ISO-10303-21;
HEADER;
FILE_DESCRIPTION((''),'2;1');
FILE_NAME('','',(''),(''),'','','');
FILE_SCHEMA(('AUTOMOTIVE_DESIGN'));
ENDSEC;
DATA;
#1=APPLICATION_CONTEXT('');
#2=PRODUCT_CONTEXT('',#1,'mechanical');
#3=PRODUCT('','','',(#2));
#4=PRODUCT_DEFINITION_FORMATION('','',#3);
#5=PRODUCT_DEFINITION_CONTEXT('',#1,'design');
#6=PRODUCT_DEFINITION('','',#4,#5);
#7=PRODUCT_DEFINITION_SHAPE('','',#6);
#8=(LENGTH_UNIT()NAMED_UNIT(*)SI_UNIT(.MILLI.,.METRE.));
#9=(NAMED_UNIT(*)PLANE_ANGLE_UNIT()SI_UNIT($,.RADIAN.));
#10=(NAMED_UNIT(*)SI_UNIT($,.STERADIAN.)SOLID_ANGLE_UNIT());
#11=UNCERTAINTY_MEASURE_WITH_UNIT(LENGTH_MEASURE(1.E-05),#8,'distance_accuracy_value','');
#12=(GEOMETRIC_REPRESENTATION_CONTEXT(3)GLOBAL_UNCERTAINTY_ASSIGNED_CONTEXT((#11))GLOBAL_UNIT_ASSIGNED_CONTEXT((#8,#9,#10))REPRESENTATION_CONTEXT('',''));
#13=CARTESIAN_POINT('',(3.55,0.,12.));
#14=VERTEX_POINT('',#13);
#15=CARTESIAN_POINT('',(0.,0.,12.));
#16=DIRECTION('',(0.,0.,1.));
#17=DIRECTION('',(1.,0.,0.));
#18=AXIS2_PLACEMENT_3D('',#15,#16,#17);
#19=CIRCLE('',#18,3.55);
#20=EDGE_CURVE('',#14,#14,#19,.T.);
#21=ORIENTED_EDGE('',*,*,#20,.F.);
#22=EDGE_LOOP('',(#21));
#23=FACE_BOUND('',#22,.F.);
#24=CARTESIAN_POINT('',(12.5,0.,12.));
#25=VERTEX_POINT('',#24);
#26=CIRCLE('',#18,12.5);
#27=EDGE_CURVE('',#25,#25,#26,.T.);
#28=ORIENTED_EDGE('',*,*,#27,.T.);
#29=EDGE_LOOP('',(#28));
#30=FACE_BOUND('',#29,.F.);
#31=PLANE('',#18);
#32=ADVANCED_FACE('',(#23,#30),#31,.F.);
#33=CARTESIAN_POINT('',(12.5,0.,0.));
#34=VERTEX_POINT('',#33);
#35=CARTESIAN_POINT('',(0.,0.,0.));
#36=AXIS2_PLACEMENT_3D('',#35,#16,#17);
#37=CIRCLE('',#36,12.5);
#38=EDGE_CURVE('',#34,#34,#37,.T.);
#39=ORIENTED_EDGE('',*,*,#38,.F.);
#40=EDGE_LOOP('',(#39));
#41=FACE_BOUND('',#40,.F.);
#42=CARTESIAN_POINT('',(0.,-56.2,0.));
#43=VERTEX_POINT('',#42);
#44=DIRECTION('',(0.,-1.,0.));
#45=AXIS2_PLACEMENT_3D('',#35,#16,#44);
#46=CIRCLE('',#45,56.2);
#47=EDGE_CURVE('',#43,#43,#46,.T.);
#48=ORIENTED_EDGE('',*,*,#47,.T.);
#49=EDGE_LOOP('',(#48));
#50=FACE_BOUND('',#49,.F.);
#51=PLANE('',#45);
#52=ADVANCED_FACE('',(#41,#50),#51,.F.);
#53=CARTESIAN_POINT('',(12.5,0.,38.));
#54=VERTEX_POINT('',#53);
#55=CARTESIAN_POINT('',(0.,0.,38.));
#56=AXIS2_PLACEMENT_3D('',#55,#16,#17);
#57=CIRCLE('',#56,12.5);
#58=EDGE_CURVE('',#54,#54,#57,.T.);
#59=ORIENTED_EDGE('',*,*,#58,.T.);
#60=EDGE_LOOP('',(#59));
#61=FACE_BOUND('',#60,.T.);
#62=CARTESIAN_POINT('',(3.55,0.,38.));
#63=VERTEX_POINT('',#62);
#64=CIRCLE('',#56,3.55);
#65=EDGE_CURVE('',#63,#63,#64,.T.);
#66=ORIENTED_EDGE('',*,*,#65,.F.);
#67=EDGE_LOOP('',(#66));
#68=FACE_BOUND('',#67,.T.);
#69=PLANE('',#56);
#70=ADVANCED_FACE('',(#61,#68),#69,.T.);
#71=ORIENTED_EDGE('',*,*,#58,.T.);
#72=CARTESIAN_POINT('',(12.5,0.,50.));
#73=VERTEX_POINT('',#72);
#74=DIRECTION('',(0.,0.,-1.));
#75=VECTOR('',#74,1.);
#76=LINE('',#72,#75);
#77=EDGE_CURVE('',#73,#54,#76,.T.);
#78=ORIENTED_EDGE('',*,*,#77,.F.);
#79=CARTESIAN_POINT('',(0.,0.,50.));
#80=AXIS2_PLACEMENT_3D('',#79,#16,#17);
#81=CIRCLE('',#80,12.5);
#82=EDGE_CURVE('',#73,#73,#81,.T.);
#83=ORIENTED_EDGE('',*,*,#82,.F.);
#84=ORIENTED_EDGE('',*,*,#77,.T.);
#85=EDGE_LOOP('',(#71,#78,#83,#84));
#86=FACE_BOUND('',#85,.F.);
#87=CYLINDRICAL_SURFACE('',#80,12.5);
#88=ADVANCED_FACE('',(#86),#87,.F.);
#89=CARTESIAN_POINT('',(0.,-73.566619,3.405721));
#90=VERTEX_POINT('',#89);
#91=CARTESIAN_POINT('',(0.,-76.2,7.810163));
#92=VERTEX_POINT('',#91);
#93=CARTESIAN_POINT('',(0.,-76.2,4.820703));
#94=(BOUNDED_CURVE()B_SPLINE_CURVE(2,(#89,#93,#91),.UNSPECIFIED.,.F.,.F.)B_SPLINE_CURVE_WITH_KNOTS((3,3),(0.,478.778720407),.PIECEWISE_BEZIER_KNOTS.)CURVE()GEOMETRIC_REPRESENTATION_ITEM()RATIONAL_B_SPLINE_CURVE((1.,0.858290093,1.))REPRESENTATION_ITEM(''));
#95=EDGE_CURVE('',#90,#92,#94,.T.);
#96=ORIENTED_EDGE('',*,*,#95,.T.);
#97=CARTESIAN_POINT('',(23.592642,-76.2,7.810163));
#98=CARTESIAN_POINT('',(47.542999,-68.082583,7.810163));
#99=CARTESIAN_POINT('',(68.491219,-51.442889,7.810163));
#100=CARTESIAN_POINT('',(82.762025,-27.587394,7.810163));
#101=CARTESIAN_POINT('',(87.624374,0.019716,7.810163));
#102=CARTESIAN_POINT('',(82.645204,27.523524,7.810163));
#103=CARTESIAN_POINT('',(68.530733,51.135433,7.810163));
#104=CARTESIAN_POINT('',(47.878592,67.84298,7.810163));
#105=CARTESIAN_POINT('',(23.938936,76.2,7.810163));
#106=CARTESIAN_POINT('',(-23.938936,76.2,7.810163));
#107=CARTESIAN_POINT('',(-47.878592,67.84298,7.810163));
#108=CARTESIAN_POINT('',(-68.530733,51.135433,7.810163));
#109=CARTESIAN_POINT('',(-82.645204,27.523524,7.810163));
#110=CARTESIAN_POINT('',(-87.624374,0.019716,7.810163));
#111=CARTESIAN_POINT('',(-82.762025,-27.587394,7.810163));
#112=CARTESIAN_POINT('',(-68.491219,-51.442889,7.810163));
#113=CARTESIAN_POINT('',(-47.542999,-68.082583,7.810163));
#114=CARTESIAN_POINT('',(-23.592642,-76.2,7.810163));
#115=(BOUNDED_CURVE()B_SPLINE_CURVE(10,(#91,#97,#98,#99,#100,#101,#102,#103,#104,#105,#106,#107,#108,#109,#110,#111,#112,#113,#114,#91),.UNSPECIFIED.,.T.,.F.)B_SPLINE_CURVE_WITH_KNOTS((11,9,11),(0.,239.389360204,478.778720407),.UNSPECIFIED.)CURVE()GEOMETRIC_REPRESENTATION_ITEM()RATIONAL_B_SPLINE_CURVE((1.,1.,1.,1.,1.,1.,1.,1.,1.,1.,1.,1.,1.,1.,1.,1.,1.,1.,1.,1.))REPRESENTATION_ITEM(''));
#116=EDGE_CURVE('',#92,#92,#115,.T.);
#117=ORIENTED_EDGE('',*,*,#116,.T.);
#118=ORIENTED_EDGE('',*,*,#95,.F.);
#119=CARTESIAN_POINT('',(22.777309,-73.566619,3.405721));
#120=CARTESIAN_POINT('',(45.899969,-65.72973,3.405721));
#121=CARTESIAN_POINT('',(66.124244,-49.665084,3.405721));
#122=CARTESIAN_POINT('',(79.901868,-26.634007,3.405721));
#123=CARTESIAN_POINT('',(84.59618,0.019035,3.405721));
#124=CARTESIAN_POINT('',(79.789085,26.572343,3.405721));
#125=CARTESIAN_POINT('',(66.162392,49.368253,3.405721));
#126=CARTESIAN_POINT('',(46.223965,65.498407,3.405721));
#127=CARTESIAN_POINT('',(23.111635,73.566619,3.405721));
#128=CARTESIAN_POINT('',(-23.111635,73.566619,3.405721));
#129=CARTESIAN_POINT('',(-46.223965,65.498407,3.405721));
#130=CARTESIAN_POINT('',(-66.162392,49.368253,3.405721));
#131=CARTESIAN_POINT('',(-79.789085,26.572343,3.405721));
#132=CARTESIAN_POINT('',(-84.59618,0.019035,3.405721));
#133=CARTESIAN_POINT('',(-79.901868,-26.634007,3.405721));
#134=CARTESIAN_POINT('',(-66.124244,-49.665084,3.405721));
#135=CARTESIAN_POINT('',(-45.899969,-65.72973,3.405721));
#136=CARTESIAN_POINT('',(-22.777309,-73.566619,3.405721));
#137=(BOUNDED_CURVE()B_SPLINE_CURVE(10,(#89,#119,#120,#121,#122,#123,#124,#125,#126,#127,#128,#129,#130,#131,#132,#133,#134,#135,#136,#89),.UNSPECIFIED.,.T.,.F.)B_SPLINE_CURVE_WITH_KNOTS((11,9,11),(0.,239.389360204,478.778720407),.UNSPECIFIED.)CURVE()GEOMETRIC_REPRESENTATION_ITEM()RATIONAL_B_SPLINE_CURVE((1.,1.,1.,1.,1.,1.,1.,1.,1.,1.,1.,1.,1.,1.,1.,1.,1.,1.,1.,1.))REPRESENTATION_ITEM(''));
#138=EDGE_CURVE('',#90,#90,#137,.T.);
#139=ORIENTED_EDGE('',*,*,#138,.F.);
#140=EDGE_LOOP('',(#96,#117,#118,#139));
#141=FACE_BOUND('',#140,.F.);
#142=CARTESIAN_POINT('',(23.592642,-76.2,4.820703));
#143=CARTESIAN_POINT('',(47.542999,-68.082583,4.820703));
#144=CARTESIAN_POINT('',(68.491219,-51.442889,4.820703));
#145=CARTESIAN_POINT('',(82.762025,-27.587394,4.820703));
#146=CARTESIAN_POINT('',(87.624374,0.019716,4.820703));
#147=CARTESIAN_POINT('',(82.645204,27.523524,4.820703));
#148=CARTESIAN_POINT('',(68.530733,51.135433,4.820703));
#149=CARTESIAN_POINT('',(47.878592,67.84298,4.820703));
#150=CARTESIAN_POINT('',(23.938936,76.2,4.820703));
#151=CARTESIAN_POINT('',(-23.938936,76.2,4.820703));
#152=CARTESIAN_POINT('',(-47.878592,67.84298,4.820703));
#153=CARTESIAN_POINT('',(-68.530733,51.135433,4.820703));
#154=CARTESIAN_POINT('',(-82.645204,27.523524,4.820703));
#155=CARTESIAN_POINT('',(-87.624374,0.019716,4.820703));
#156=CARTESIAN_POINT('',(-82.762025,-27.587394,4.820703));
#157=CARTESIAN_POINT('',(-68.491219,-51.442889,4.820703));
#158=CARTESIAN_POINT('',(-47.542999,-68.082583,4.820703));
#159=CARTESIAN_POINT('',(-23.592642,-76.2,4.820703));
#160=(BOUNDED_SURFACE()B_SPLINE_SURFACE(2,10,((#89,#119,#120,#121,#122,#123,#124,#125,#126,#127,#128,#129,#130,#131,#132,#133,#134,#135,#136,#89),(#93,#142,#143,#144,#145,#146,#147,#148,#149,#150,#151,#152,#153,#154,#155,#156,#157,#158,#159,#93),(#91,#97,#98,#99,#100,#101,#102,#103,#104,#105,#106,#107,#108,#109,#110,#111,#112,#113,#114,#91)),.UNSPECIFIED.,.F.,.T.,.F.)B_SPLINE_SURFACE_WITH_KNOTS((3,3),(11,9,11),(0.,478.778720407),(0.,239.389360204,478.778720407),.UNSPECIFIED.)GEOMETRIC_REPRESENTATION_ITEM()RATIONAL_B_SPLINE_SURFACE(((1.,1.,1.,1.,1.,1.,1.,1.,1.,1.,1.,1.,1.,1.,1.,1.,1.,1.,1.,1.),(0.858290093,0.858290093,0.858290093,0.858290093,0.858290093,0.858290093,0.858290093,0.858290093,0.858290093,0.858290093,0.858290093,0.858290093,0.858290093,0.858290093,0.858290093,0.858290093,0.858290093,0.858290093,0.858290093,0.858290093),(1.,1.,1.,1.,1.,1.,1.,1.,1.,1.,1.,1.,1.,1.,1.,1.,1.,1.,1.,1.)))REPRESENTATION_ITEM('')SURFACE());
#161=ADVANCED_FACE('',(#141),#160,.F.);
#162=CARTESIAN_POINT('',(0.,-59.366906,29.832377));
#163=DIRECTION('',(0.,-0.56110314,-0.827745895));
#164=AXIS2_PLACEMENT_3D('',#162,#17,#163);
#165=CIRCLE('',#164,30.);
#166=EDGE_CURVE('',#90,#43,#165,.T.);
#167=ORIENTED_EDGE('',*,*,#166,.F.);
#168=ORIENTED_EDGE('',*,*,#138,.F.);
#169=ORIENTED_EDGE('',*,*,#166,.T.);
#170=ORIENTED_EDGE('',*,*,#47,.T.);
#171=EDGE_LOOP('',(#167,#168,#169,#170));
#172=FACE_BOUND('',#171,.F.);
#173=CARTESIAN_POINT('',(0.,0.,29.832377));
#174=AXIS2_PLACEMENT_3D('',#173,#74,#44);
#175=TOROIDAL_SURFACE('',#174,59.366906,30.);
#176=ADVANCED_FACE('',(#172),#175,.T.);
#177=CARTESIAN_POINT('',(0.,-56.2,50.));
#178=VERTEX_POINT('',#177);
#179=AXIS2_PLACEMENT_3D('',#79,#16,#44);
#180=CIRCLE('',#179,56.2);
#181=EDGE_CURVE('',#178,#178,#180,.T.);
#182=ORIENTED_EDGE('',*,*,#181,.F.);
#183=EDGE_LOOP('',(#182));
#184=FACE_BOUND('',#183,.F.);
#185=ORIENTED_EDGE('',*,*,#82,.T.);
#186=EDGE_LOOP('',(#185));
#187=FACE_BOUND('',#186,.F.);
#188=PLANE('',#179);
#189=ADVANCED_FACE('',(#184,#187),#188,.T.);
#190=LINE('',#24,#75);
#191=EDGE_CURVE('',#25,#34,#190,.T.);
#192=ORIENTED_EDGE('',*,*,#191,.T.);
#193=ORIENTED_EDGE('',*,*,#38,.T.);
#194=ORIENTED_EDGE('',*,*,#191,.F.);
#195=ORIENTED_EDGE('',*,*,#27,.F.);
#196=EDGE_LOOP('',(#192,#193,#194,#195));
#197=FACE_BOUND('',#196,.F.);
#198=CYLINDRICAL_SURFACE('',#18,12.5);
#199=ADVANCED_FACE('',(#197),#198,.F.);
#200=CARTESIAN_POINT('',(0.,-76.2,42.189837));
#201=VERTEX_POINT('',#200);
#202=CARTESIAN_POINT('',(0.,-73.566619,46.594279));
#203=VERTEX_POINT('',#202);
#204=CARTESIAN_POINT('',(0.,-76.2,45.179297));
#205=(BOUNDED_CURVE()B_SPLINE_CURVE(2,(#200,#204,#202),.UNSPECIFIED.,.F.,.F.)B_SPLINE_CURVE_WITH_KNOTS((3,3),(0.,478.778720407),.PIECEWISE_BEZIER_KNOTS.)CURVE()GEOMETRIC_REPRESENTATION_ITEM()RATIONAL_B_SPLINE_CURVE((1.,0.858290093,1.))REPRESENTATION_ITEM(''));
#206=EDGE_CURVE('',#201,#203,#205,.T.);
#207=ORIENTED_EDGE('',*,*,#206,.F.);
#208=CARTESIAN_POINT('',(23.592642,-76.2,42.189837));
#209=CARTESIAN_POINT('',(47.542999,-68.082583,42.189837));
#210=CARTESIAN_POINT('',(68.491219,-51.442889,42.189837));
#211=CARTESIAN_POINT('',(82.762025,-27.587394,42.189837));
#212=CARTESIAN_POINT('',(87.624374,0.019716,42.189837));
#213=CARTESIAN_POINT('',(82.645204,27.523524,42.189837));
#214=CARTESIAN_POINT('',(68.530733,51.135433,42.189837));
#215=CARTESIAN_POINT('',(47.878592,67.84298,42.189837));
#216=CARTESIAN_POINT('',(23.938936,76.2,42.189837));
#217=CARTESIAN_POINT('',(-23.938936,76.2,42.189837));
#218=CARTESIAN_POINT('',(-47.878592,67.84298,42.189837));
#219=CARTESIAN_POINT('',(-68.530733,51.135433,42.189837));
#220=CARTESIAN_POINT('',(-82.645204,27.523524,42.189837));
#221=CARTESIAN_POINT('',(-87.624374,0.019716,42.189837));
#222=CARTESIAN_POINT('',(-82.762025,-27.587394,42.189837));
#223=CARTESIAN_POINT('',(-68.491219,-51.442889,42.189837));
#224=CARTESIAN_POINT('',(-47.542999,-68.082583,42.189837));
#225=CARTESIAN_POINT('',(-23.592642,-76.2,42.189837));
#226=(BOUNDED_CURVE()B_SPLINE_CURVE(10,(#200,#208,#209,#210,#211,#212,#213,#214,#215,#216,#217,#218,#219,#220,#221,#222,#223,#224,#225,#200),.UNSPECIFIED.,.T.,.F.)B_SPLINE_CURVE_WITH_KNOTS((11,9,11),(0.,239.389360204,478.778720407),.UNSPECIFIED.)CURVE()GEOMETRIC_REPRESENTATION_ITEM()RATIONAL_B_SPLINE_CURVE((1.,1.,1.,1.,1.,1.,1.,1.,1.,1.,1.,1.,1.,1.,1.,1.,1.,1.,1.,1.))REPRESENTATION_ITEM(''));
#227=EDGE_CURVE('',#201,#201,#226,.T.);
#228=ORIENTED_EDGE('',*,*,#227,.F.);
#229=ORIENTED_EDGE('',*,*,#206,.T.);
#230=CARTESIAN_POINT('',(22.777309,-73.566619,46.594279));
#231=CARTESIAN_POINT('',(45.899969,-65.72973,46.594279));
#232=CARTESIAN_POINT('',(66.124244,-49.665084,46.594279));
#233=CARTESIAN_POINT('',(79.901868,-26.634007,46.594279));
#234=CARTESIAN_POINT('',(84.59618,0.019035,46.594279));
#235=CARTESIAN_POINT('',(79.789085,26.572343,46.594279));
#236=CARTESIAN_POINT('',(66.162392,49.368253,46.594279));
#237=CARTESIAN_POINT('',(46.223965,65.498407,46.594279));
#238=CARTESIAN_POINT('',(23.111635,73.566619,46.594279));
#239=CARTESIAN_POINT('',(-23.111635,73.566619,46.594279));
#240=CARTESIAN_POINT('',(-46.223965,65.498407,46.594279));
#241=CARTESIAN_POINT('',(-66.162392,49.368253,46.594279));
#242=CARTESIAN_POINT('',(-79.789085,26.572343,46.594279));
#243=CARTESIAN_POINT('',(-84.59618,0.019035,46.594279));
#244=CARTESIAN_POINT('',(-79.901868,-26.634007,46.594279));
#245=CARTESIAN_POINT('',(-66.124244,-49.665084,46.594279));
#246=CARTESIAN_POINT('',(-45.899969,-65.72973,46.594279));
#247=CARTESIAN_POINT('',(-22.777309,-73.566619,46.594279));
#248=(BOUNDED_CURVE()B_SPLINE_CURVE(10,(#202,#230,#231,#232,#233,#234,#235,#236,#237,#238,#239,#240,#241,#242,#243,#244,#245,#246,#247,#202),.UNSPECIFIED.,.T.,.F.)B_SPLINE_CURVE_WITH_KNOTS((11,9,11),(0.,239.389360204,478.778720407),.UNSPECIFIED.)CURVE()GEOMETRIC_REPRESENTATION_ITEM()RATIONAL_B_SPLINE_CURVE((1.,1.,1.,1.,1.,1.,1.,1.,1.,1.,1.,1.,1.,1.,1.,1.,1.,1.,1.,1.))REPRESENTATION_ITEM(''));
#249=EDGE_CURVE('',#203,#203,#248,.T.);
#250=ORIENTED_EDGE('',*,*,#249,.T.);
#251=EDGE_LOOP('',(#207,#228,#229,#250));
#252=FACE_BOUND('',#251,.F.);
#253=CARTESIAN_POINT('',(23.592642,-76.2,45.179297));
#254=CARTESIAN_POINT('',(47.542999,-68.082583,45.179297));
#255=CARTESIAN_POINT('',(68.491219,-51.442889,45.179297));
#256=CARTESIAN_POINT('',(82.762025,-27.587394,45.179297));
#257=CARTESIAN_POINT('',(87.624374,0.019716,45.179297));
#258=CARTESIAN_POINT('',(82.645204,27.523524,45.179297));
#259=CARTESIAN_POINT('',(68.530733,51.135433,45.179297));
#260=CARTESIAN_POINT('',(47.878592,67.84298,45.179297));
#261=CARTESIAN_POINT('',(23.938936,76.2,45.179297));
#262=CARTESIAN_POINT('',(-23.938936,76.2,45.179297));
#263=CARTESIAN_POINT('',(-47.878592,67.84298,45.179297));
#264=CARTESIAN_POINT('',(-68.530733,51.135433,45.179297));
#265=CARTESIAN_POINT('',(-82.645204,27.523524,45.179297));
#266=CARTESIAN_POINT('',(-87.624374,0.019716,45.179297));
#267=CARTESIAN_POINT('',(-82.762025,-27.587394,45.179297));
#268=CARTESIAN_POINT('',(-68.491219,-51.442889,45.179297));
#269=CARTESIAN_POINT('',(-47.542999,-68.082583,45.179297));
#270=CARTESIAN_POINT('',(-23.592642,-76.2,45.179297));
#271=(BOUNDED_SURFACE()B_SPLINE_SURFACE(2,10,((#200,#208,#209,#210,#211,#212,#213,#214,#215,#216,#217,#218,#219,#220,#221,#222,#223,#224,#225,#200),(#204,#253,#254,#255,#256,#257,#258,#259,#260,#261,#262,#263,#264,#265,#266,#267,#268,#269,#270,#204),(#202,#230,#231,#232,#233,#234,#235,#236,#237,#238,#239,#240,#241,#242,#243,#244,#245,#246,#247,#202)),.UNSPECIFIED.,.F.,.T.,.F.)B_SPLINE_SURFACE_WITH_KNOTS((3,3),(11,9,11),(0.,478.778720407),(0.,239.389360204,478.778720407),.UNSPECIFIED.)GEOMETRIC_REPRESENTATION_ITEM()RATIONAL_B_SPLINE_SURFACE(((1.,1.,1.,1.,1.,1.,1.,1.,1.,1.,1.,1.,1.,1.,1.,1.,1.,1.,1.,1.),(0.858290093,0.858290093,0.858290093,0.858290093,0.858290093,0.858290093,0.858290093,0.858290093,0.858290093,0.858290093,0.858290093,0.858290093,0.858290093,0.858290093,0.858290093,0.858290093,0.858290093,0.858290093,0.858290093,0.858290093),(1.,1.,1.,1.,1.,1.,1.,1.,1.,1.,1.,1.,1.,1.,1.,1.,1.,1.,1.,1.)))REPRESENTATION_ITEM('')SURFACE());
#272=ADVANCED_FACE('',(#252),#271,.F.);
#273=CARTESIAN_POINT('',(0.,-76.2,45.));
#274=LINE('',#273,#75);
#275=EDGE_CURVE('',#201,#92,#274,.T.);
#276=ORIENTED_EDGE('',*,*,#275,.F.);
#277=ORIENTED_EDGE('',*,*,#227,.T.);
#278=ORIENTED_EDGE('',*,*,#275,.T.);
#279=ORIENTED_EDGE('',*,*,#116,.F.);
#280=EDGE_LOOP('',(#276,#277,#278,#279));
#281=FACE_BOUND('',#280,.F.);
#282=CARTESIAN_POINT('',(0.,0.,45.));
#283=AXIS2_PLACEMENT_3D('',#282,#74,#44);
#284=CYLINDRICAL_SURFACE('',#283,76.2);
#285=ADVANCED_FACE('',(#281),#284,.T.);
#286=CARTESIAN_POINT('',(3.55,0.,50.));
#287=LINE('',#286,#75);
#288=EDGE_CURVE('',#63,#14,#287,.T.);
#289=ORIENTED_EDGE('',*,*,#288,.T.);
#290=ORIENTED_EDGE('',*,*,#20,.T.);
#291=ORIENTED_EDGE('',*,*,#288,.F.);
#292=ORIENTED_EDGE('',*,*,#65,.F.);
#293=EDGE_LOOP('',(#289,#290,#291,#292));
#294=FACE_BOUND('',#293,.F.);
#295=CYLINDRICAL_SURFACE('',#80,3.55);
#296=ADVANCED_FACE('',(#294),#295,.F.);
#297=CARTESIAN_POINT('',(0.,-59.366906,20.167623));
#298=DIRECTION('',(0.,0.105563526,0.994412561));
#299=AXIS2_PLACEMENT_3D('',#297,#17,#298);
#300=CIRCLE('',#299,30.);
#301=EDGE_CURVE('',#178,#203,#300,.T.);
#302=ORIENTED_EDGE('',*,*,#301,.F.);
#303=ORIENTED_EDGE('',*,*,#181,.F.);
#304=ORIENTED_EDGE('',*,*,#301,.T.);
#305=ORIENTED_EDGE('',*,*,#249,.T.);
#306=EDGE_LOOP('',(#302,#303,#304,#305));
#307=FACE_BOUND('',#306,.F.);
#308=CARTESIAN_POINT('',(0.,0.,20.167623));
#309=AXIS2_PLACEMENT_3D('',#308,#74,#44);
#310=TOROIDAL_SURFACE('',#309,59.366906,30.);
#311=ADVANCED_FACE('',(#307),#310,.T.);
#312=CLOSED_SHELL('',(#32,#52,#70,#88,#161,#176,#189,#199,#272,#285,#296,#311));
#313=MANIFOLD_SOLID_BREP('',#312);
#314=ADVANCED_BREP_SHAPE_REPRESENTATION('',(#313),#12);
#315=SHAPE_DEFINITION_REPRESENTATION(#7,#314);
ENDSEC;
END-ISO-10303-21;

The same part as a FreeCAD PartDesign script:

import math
import FreeCAD as App
import Part
import Sketcher

V = App.Vector
Q = App.Units.Quantity


def edges_at(feature, points):
    """Names of the edges that pass closest to the given points."""
    edges = feature.Shape.Edges
    near = lambda p: min(range(len(edges)), key=lambda i: edges[i].distToShape(Part.Vertex(*p))[0])
    return sorted({f"Edge{near(p) + 1}" for p in points})

doc = App.newDocument("Part")
body = doc.addObject("PartDesign::Body", "Body")

# Sketch on YZ plane
sketch1 = body.newObject("Sketcher::SketchObject", "Sketch")
sketch1.AttachmentSupport = (doc.getObject("YZ_Plane"), [""])
sketch1.MapMode = "FlatFace"
sketch1.addGeometry([
    Part.LineSegment(V(-56, 0, 0), V(0, 0, 0)),  # 0
    Part.LineSegment(V(0, 0, 0), V(0, 50, 0)),  # 1
    Part.LineSegment(V(0, 50, 0), V(-56, 50, 0)),  # 2
    Part.ArcOfCircle(Part.Circle(V(-59, 20, 0), V(0, 0, 1), 30), math.radians(84), math.radians(124)),  # 3
    Part.LineSegment(V(-76, 45, 0), V(-76, 5, 0)),  # 4
    Part.ArcOfCircle(Part.Circle(V(-59, 30, 0), V(0, 0, 1), 30), math.radians(-124), math.radians(-84)),  # 5
], False)
sketch1.addConstraint([
    Sketcher.Constraint("Coincident", 0, 2, 1, 1),
    Sketcher.Constraint("Coincident", 1, 2, 2, 1),
    Sketcher.Constraint("Coincident", 2, 2, 3, 1),
    Sketcher.Constraint("Coincident", 3, 2, 4, 1),
    Sketcher.Constraint("Coincident", 4, 2, 5, 1),
    Sketcher.Constraint("Coincident", 5, 2, 0, 1),
    Sketcher.Constraint("Horizontal", 0),
    Sketcher.Constraint("Vertical", 1),
    Sketcher.Constraint("Horizontal", 2),
    Sketcher.Constraint("Vertical", 4),
    Sketcher.Constraint("Coincident", 0, 2, -1, 1),
    Sketcher.Constraint("Equal", 3, 5),
    Sketcher.Constraint("Vertical", 3, 3, 5, 3),
    Sketcher.Constraint("Vertical", 2, 2, 5, 2),
    Sketcher.Constraint("Radius", 3, Q("30 mm")),
    Sketcher.Constraint("DistanceY", 1, 1, 1, 2, Q("50 mm")),
    Sketcher.Constraint("DistanceY", 4, 2, 4, 1, Q("40 mm")),
    Sketcher.Constraint("DistanceX", 0, 1, 0, 2, Q("56.2 mm")),
    Sketcher.Constraint("DistanceX", 3, 2, 2, 2, Q("20 mm")),
])
revolution = body.newObject("PartDesign::Revolution", "Revolution")
revolution.Profile = sketch1
revolution.ReferenceAxis = (sketch1, ["V_Axis"])
revolution.Angle = 360

# Sketch on XY plane
sketch2 = body.newObject("Sketcher::SketchObject", "Sketch001")
sketch2.AttachmentSupport = (doc.getObject("XY_Plane"), [""])
sketch2.MapMode = "FlatFace"
sketch2.AttachmentOffset = App.Placement(V(0, 0, 50), App.Rotation())
sketch2.addGeometry(Part.Circle(V(0, 0, 0), V(0, 0, 1), 3.5), False)
sketch2.addConstraint([
    Sketcher.Constraint("Coincident", 0, 3, -1, 1),
    Sketcher.Constraint("Diameter", 0, Q("7.1 mm")),
])
pocket1 = body.newObject("PartDesign::Pocket", "Pocket")
pocket1.Profile = sketch2
pocket1.Type = "ThroughAll"

# Sketch on XY plane
sketch3 = body.newObject("Sketcher::SketchObject", "Sketch002")
sketch3.AttachmentSupport = (doc.getObject("XY_Plane"), [""])
sketch3.MapMode = "FlatFace"
sketch3.AttachmentOffset = App.Placement(V(0, 0, 50), App.Rotation())
sketch3.addGeometry([
    Part.Circle(V(0, 0, 0), V(0, 0, 1), 12.5),
    Part.Circle(V(0, 0, 0), V(0, 0, 1), 3.5),
], False)
sketch3.addConstraint([
    Sketcher.Constraint("Coincident", 0, 3, -1, 1),
    Sketcher.Constraint("Coincident", 1, 3, -1, 1),
    Sketcher.Constraint("Diameter", 0, Q("25 mm")),
    Sketcher.Constraint("Diameter", 1, Q("7.1 mm")),
])
pocket2 = body.newObject("PartDesign::Pocket", "Pocket001")
pocket2.Profile = sketch3
pocket2.Length = 12

# Sketch on XY plane
sketch4 = body.newObject("Sketcher::SketchObject", "Sketch003")
sketch4.AttachmentSupport = (doc.getObject("XY_Plane"), [""])
sketch4.MapMode = "FlatFace"
sketch4.AttachmentOffset = App.Placement(V(0, 0, 12), App.Rotation())
sketch4.addGeometry([
    Part.Circle(V(0, 0, 0), V(0, 0, 1), 12.5),
    Part.Circle(V(0, 0, 0), V(0, 0, 1), 3.5),
], False)
sketch4.addConstraint([
    Sketcher.Constraint("Coincident", 0, 3, -1, 1),
    Sketcher.Constraint("Coincident", 1, 3, -1, 1),
    Sketcher.Constraint("Diameter", 0, Q("25 mm")),
    Sketcher.Constraint("Diameter", 1, Q("7.1 mm")),
])
pocket3 = body.newObject("PartDesign::Pocket", "Pocket002")
pocket3.Profile = sketch4
pocket3.Length = 12
doc.recompute()

fillet = body.newObject("PartDesign::Fillet", "Fillet")
fillet.Base = (pocket3, edges_at(pocket3, [(0, 76.2, 45), (0, 76.2, 5)]))
fillet.Radius = 5

doc.recompute()
